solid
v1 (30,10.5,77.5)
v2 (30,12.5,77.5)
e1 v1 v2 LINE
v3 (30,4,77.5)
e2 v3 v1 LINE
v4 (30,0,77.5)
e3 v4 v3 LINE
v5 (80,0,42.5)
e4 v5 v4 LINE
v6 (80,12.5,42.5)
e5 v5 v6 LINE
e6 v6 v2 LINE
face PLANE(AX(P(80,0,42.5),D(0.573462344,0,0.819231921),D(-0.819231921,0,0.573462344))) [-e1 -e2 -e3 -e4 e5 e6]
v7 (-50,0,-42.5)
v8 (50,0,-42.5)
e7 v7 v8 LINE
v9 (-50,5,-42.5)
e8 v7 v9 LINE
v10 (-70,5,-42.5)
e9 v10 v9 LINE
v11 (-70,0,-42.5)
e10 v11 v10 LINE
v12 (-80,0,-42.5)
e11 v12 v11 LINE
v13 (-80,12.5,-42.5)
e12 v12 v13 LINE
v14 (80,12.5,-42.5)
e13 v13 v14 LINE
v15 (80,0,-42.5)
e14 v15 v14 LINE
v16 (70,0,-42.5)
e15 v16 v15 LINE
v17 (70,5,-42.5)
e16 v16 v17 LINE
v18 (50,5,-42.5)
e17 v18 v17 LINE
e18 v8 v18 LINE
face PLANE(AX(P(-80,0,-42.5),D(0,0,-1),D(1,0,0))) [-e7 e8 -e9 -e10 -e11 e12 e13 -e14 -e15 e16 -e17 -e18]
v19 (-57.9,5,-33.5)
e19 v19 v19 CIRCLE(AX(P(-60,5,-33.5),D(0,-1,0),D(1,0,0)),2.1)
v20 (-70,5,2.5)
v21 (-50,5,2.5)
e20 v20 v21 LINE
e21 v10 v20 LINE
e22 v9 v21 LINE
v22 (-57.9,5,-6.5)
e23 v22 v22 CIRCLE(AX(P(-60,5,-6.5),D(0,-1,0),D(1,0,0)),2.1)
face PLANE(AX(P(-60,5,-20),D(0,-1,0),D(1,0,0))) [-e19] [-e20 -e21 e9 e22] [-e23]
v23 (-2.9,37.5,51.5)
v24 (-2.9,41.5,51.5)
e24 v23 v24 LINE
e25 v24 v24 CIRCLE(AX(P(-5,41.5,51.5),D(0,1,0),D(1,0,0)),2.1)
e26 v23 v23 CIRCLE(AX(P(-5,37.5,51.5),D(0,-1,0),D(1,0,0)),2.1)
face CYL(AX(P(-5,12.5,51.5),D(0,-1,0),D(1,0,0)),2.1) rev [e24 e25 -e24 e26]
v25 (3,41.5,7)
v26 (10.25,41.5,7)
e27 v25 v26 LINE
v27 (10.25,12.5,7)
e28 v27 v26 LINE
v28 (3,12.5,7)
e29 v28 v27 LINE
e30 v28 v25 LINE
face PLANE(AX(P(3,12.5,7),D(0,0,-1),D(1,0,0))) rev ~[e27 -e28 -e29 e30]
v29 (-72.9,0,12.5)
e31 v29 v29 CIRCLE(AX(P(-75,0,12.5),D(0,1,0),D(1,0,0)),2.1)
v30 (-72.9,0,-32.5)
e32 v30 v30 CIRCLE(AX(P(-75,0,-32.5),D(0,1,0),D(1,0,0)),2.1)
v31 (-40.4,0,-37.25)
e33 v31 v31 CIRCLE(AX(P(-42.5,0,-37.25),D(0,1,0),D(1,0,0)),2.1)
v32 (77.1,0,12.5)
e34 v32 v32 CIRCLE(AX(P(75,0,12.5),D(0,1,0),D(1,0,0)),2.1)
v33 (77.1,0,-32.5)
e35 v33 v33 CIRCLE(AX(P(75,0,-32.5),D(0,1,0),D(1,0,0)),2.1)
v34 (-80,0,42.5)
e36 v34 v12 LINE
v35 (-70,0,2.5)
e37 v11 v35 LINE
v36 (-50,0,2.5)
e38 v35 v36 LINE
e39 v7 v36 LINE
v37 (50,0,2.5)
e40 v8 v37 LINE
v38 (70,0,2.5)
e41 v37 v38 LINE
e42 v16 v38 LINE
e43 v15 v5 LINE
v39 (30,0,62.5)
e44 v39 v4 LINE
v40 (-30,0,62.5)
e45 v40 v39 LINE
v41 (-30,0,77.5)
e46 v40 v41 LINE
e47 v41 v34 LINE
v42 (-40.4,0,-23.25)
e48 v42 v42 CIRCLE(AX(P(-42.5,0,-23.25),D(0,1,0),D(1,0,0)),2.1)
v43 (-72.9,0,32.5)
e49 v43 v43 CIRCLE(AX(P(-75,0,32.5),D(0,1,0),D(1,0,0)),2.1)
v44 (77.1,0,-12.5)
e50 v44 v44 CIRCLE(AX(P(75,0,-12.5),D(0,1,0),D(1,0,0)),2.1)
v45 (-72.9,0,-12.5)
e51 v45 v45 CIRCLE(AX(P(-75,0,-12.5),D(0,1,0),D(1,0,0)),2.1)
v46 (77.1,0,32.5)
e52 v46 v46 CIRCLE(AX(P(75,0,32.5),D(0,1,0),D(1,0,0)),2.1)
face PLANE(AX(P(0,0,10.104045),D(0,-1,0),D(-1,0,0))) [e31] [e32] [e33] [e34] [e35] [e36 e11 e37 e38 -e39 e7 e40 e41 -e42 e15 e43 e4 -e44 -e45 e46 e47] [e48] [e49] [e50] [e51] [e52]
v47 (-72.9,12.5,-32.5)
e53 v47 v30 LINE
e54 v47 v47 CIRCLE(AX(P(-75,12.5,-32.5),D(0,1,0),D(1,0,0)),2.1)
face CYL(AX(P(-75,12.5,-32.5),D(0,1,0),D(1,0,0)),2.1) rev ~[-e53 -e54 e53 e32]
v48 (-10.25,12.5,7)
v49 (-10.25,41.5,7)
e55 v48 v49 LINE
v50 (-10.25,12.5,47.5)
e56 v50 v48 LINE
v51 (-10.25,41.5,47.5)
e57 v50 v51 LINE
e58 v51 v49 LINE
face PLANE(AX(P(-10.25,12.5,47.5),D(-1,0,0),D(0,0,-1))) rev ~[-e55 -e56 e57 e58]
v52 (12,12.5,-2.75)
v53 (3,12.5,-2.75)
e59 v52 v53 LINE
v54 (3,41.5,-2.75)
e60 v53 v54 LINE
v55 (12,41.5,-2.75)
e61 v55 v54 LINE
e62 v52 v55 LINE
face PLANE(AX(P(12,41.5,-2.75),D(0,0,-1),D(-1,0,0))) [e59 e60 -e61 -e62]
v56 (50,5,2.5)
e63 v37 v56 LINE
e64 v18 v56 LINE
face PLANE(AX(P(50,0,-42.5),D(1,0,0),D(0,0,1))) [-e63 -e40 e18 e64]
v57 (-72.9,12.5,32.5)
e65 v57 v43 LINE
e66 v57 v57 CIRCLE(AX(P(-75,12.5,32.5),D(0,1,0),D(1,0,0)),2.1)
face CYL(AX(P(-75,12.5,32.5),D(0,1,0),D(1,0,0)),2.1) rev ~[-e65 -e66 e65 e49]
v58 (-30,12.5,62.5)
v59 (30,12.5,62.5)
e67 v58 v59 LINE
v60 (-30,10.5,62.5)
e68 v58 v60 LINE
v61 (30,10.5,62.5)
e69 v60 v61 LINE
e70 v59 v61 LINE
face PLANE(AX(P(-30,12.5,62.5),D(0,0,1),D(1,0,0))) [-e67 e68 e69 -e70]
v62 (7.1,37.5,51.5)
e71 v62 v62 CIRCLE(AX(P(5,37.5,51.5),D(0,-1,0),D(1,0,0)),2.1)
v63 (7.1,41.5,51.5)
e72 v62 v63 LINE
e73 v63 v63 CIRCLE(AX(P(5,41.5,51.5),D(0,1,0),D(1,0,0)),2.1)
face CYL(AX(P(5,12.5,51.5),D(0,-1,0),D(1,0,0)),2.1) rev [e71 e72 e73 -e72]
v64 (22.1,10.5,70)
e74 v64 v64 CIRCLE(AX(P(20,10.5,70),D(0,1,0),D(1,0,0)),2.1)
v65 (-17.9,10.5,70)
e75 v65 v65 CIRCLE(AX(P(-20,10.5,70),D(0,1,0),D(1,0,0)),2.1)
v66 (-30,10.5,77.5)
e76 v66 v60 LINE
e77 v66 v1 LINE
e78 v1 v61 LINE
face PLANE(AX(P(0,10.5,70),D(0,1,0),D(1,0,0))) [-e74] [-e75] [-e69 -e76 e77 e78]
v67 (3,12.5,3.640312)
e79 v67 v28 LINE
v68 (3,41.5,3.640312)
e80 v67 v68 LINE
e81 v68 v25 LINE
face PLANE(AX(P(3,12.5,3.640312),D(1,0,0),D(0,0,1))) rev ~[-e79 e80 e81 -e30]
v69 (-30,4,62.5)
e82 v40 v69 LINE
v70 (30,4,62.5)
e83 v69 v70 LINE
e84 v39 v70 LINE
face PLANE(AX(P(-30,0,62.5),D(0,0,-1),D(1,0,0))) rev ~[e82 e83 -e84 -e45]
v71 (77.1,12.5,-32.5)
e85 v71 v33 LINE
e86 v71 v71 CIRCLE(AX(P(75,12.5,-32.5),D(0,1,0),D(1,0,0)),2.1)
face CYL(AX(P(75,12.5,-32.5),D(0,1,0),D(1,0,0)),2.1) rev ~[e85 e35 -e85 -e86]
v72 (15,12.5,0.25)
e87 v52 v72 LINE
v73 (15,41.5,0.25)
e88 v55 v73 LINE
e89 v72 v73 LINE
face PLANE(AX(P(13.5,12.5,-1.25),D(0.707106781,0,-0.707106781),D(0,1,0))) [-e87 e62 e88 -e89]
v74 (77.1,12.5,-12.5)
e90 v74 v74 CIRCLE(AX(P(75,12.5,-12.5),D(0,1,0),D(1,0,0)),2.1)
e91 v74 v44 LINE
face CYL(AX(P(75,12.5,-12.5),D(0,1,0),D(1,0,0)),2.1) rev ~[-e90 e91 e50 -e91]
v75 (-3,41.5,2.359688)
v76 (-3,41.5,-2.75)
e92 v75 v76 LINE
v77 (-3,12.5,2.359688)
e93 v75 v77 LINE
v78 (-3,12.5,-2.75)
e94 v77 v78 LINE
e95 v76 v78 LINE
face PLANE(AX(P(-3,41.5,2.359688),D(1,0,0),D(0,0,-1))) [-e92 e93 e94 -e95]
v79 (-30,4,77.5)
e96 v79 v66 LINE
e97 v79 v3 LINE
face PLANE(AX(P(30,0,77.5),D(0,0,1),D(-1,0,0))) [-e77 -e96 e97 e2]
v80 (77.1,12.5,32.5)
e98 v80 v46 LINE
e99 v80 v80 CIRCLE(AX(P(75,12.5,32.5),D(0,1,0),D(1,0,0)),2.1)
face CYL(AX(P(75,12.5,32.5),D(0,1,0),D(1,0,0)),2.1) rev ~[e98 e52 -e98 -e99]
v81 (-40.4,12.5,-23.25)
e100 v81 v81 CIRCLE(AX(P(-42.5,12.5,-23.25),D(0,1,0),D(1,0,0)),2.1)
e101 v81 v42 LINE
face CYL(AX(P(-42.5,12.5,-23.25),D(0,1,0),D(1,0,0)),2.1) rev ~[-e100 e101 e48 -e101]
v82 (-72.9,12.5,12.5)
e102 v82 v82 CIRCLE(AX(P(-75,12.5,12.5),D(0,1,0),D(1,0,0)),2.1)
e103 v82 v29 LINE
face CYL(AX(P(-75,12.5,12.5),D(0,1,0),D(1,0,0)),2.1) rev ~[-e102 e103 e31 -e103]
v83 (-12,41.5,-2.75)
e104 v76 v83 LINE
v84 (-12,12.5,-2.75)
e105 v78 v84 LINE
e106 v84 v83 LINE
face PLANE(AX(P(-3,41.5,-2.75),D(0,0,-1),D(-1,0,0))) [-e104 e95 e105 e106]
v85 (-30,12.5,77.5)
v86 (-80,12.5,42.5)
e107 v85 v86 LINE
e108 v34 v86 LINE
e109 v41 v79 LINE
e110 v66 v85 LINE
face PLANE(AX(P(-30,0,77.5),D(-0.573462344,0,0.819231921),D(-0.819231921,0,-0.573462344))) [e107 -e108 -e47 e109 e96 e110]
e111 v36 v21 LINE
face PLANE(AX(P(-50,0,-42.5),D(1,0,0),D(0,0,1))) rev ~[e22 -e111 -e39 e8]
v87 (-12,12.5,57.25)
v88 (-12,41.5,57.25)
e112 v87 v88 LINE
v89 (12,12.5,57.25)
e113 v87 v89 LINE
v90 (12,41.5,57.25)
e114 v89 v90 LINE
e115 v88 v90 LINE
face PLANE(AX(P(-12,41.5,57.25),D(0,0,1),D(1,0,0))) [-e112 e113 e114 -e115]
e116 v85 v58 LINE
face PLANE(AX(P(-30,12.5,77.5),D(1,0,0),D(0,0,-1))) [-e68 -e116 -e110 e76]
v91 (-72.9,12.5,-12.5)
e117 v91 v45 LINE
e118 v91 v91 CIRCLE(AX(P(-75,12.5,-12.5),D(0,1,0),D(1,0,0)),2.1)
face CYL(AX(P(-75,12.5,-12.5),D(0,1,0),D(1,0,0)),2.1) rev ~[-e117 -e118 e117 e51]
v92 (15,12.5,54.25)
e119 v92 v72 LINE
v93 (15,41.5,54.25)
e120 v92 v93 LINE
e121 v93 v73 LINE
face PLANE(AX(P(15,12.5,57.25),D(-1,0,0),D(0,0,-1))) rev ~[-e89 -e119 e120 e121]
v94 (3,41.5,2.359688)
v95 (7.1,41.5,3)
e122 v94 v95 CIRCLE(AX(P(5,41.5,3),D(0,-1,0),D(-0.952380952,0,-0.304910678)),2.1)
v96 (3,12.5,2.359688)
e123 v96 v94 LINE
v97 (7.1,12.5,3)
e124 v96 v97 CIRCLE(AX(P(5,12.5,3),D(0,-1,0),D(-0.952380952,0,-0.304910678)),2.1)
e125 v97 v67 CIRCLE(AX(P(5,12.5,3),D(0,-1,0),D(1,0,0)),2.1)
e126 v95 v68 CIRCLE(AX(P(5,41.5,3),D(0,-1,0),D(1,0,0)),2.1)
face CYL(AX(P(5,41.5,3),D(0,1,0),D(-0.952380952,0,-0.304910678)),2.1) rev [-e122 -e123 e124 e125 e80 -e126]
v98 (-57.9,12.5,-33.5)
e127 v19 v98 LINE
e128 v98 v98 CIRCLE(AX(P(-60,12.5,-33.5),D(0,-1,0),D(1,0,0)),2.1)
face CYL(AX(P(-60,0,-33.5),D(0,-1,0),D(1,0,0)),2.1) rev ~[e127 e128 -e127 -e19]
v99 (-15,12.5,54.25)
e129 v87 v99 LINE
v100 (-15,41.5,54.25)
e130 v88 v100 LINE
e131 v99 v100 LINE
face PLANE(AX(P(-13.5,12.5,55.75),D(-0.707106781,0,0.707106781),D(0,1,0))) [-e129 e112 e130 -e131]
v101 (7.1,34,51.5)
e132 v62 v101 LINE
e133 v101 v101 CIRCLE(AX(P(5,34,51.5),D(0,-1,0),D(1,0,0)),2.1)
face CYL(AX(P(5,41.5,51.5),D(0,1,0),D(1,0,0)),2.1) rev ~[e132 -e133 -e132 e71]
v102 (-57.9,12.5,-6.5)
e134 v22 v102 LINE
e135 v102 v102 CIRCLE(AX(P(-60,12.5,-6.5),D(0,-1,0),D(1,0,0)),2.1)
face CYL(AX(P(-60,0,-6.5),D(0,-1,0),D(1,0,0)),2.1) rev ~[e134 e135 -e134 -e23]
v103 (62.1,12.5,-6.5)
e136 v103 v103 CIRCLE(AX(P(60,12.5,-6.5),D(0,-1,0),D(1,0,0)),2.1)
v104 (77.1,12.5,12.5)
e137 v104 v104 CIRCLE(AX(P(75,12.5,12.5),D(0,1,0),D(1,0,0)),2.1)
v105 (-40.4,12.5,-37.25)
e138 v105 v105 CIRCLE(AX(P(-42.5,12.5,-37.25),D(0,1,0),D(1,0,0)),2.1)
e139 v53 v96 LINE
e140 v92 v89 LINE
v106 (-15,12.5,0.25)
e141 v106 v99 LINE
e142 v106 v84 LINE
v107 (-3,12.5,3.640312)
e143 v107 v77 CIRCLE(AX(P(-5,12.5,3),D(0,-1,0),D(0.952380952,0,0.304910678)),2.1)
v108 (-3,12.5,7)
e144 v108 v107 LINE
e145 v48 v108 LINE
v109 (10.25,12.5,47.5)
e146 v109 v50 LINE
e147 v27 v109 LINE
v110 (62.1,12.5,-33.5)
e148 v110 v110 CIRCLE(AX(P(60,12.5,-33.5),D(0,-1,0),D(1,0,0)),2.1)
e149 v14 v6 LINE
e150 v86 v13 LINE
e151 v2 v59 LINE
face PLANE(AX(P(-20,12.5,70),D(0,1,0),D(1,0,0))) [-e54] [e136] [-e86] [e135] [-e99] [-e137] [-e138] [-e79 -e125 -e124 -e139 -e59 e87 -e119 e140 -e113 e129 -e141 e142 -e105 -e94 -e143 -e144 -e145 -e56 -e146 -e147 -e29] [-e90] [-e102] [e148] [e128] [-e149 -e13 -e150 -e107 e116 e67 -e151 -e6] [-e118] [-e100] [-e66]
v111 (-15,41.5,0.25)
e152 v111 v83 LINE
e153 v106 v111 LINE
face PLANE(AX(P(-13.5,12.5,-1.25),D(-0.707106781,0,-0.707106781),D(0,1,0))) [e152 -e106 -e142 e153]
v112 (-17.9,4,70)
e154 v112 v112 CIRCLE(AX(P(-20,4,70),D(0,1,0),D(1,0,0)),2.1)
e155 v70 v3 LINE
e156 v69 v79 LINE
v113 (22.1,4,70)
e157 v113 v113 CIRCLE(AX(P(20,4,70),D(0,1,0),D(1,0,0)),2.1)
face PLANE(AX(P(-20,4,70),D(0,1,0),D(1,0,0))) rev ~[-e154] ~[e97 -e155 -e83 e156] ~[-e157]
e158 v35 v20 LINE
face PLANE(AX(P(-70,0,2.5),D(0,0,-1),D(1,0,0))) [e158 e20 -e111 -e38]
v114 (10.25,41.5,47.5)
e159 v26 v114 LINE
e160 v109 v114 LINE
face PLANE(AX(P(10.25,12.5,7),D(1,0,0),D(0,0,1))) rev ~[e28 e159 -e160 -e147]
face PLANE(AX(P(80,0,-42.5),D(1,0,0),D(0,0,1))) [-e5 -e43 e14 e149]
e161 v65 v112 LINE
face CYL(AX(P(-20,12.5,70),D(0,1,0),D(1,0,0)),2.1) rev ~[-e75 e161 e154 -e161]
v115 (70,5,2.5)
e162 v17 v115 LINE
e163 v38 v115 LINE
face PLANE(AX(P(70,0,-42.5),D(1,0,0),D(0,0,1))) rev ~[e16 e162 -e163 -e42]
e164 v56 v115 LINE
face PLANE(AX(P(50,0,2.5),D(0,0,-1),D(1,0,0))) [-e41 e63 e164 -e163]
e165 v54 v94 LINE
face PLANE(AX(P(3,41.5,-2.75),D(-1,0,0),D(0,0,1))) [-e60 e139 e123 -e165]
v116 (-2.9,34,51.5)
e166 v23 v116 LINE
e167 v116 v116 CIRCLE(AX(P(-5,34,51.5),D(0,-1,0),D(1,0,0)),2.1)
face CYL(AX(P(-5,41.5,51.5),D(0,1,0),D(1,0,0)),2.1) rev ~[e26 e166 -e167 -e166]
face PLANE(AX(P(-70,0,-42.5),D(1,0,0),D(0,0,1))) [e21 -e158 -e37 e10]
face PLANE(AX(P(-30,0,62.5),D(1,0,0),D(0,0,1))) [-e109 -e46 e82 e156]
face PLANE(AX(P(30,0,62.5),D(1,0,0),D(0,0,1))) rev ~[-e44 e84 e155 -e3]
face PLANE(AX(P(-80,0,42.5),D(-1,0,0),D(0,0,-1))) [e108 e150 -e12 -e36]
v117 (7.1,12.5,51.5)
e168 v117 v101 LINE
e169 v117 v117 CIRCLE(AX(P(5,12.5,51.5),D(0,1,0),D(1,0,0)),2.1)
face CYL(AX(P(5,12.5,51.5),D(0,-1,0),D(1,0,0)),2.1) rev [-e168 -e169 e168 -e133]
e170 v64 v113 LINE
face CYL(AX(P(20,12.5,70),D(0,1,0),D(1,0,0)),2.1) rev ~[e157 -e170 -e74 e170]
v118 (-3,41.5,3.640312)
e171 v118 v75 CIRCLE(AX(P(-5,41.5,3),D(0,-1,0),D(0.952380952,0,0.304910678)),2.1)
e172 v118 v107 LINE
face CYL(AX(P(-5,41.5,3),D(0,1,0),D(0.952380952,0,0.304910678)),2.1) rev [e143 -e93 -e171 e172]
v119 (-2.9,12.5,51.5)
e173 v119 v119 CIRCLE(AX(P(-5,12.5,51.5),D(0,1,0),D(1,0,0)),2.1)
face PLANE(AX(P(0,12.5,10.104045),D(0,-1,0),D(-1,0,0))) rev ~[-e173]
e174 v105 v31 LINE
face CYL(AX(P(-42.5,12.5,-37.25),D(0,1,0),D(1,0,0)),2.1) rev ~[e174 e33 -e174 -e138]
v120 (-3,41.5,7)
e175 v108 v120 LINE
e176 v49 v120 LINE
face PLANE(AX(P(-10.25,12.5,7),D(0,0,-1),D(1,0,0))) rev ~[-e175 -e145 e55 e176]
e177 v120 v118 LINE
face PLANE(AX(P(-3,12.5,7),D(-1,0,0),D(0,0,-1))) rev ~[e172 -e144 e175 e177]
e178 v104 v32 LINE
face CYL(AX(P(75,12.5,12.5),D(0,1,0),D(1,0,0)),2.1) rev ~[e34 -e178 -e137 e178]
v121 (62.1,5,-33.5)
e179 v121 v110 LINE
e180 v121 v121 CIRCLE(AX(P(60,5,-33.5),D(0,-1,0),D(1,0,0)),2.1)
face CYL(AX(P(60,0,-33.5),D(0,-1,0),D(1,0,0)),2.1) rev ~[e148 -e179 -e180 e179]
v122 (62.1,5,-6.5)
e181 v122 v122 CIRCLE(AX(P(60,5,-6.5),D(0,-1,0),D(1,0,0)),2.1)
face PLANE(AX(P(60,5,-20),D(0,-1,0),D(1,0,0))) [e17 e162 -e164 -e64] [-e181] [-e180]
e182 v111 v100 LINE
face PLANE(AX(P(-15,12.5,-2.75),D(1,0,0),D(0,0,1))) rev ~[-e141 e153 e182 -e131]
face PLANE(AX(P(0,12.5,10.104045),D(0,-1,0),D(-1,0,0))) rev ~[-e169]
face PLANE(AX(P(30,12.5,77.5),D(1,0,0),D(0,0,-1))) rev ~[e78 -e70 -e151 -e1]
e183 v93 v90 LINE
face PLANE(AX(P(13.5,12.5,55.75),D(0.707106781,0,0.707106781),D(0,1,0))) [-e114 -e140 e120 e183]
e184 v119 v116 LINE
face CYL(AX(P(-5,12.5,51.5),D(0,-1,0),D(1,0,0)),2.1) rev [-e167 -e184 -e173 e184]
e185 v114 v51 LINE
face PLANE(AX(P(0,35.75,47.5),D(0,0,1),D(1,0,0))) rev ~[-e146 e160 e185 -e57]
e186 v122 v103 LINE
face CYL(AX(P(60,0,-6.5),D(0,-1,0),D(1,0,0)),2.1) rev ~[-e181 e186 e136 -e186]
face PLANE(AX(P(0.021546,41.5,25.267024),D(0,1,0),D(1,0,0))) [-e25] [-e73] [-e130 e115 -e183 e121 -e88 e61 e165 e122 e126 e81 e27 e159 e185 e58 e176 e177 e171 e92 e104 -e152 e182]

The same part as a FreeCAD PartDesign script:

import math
import FreeCAD as App
import Part
import Sketcher
from FreeCAD import Vector
Q = App.Units.Quantity


def edges_at(feature, points):
    """Names of the edges that pass closest to the given points."""
    edges = feature.Shape.Edges
    near = lambda p: min(range(len(edges)), key=lambda i: edges[i].distToShape(Part.Vertex(*p))[0])
    return sorted({f"Edge{near(p) + 1}" for p in points})

doc = App.newDocument("Part")
body = doc.addObject("PartDesign::Body", "Body")

sketch1 = body.newObject("Sketcher::SketchObject", "Sketch")
sketch1.AttachmentSupport = (doc.getObject("XZ_Plane"), [""])
sketch1.MapMode = "FlatFace"
sketch1.addGeometry(Part.LineSegment(Vector(-80, -42, 0), Vector(-80, 42, 0)), False)
sketch1.addGeometry(Part.LineSegment(Vector(-80, 42, 0), Vector(-30, 78, 0)), False)
sketch1.addGeometry(Part.LineSegment(Vector(-30, 78, 0), Vector(30, 78, 0)), False)
sketch1.addGeometry(Part.LineSegment(Vector(30, 78, 0), Vector(80, 42, 0)), False)
sketch1.addGeometry(Part.LineSegment(Vector(80, 42, 0), Vector(80, -42, 0)), False)
sketch1.addGeometry(Part.LineSegment(Vector(80, -42, 0), Vector(-80, -42, 0)), False)
sketch1.addConstraint(Sketcher.Constraint("Coincident", 0, 2, 1, 1))
sketch1.addConstraint(Sketcher.Constraint("Coincident", 1, 2, 2, 1))
sketch1.addConstraint(Sketcher.Constraint("Coincident", 2, 2, 3, 1))
sketch1.addConstraint(Sketcher.Constraint("Coincident", 3, 2, 4, 1))
sketch1.addConstraint(Sketcher.Constraint("Coincident", 4, 2, 5, 1))
sketch1.addConstraint(Sketcher.Constraint("Coincident", 5, 2, 0, 1))
sketch1.addConstraint(Sketcher.Constraint("Vertical", 0))
sketch1.addConstraint(Sketcher.Constraint("Horizontal", 2))
sketch1.addConstraint(Sketcher.Constraint("Vertical", 4))
sketch1.addConstraint(Sketcher.Constraint("Horizontal", 5))
sketch1.addConstraint(Sketcher.Constraint("Symmetric", 0, 2, 4, 2, -1, 1))
sketch1.addConstraint(Sketcher.Constraint("Horizontal", 0, 2, 3, 2))
sketch1.addConstraint(Sketcher.Constraint("Equal", 1, 3))
sketch1.addConstraint(Sketcher.Constraint("DistanceX", 2, 1, 2, 2, Q("60 mm")))
sketch1.addConstraint(Sketcher.Constraint("DistanceX", 5, 2, 5, 1, Q("160 mm")))
sketch1.addConstraint(Sketcher.Constraint("DistanceY", 0, 1, 0, 2, Q("85 mm")))
sketch1.addConstraint(Sketcher.Constraint("DistanceY", 0, 2, 1, 2, Q("35 mm")))
pad1 = body.newObject("PartDesign::Pad", "Pad")
pad1.Profile = sketch1
pad1.Length = 12.5
pad1.Reversed = True

sketch2 = body.newObject("Sketcher::SketchObject", "Sketch001")
sketch2.AttachmentSupport = (doc.getObject("XZ_Plane"), [""])
sketch2.MapMode = "FlatFace"
sketch2.AttachmentOffset = App.Placement(Vector(0, 0, -12.5), App.Rotation())
sketch2.addGeometry(Part.LineSegment(Vector(10.2, 47.5, 0), Vector(-10.2, 47.5, 0)), False)
sketch2.addGeometry(Part.LineSegment(Vector(-10.2, 47.5, 0), Vector(-10.2, 7, 0)), False)
sketch2.addGeometry(Part.LineSegment(Vector(-10.2, 7, 0), Vector(-3, 7, 0)), False)
sketch2.addGeometry(Part.LineSegment(Vector(-3, 7, 0), Vector(-3, 3.6, 0)), False)
sketch2.addGeometry(Part.ArcOfCircle(Part.Circle(Vector(-5, 3, 0), Vector(0, 0, 1), 2.1), math.radians(18), math.radians(342)), False)
sketch2.addGeometry(Part.LineSegment(Vector(-3, 2.4, 0), Vector(-3, -2.8, 0)), False)
sketch2.addGeometry(Part.LineSegment(Vector(-3, -2.8, 0), Vector(-15, -2.8, 0)), False)
sketch2.addGeometry(Part.LineSegment(Vector(-15, -2.8, 0), Vector(-15, 57.2, 0)), False)
sketch2.addGeometry(Part.LineSegment(Vector(-15, 57.2, 0), Vector(15, 57.2, 0)), False)
sketch2.addGeometry(Part.LineSegment(Vector(15, 57.2, 0), Vector(15, -2.8, 0)), False)
sketch2.addGeometry(Part.LineSegment(Vector(15, -2.8, 0), Vector(3, -2.8, 0)), False)
sketch2.addGeometry(Part.LineSegment(Vector(3, -2.8, 0), Vector(3, 2.4, 0)), False)
sketch2.addGeometry(Part.ArcOfCircle(Part.Circle(Vector(5, 3, 0), Vector(0, 0, 1), 2.1), math.radians(-162), math.radians(0)), False)
sketch2.addGeometry(Part.ArcOfCircle(Part.Circle(Vector(5, 3, 0), Vector(0, 0, 1), 2.1), math.radians(0), math.radians(162)), False)
sketch2.addGeometry(Part.LineSegment(Vector(3, 3.6, 0), Vector(3, 7, 0)), False)
sketch2.addGeometry(Part.LineSegment(Vector(3, 7, 0), Vector(10.2, 7, 0)), False)
sketch2.addGeometry(Part.LineSegment(Vector(10.2, 7, 0), Vector(10.2, 47.5, 0)), False)
sketch2.addGeometry(Part.Circle(Vector(-5, 51.5, 0), Vector(0, 0, 1), 2.1), False)
sketch2.addGeometry(Part.Circle(Vector(5, 51.5, 0), Vector(0, 0, 1), 2.1), False)
sketch2.addConstraint(Sketcher.Constraint("Coincident", 0, 2, 1, 1))
sketch2.addConstraint(Sketcher.Constraint("Coincident", 1, 2, 2, 1))
sketch2.addConstraint(Sketcher.Constraint("Coincident", 2, 2, 3, 1))
sketch2.addConstraint(Sketcher.Constraint("Coincident", 3, 2, 4, 1))
sketch2.addConstraint(Sketcher.Constraint("Coincident", 4, 2, 5, 1))
sketch2.addConstraint(Sketcher.Constraint("Coincident", 5, 2, 6, 1))
sketch2.addConstraint(Sketcher.Constraint("Coincident", 6, 2, 7, 1))
sketch2.addConstraint(Sketcher.Constraint("Coincident", 7, 2, 8, 1))
sketch2.addConstraint(Sketcher.Constraint("Coincident", 8, 2, 9, 1))
sketch2.addConstraint(Sketcher.Constraint("Coincident", 9, 2, 10, 1))
sketch2.addConstraint(Sketcher.Constraint("Coincident", 10, 2, 11, 1))
sketch2.addConstraint(Sketcher.Constraint("Coincident", 11, 2, 12, 1))
sketch2.addConstraint(Sketcher.Constraint("Tangent", 12, 2, 13, 1))
sketch2.addConstraint(Sketcher.Constraint("Coincident", 13, 2, 14, 1))
sketch2.addConstraint(Sketcher.Constraint("Coincident", 14, 2, 15, 1))
sketch2.addConstraint(Sketcher.Constraint("Coincident", 15, 2, 16, 1))
sketch2.addConstraint(Sketcher.Constraint("Coincident", 16, 2, 0, 1))
sketch2.addConstraint(Sketcher.Constraint("Horizontal", 0))
sketch2.addConstraint(Sketcher.Constraint("Vertical", 1))
sketch2.addConstraint(Sketcher.Constraint("Horizontal", 2))
sketch2.addConstraint(Sketcher.Constraint("Vertical", 3))
sketch2.addConstraint(Sketcher.Constraint("Vertical", 5))
sketch2.addConstraint(Sketcher.Constraint("Horizontal", 6))
sketch2.addConstraint(Sketcher.Constraint("Vertical", 7))
sketch2.addConstraint(Sketcher.Constraint("Horizontal", 8))
sketch2.addConstraint(Sketcher.Constraint("Vertical", 9))
sketch2.addConstraint(Sketcher.Constraint("Horizontal", 10))
sketch2.addConstraint(Sketcher.Constraint("Vertical", 11))
sketch2.addConstraint(Sketcher.Constraint("Vertical", 14))
sketch2.addConstraint(Sketcher.Constraint("Horizontal", 15))
sketch2.addConstraint(Sketcher.Constraint("Vertical", 16))
sketch2.addConstraint(Sketcher.Constraint("Equal", 4, 12))
sketch2.addConstraint(Sketcher.Constraint("Equal", 12, 13))
sketch2.addConstraint(Sketcher.Constraint("Equal", 13, 17))
sketch2.addConstraint(Sketcher.Constraint("Equal", 17, 18))
sketch2.addConstraint(Sketcher.Constraint("Symmetric", 4, 3, 12, 3, -2))
sketch2.addConstraint(Sketcher.Constraint("Symmetric", 17, 3, 18, 3, -2))
sketch2.addConstraint(Sketcher.Constraint("Symmetric", 6, 2, 9, 2, -2))
sketch2.addConstraint(Sketcher.Constraint("Symmetric", 2, 2, 14, 2, -2))
sketch2.addConstraint(Sketcher.Constraint("Horizontal", 4, 2, 11, 2))
sketch2.addConstraint(Sketcher.Constraint("Horizontal", 13, 3, 12, 2))
sketch2.addConstraint(Sketcher.Constraint("Vertical", 4, 3, 17, 3))
sketch2.addConstraint(Sketcher.Constraint("Vertical", 3, 2, 4, 2))
sketch2.addConstraint(Sketcher.Constraint("Equal", 2, 15))
sketch2.addConstraint(Sketcher.Constraint("Diameter", 17, Q("4.2 mm")))
sketch2.addConstraint(Sketcher.Constraint("DistanceX", 6, 2, 6, 1, Q("12 mm")))
sketch2.addConstraint(Sketcher.Constraint("DistanceX", 8, 1, 8, 2, Q("30 mm")))
sketch2.addConstraint(Sketcher.Constraint("DistanceY", 7, 1, 7, 2, Q("60 mm")))
sketch2.addConstraint(Sketcher.Constraint("DistanceX", 0, 2, 0, 1, Q("20.5 mm")))
sketch2.addConstraint(Sketcher.Constraint("DistanceY", 1, 2, 1, 1, Q("40.5 mm")))
sketch2.addConstraint(Sketcher.Constraint("DistanceX", 4, 3, -1, 1, Q("5 mm")))
sketch2.addConstraint(Sketcher.Constraint("DistanceY", -1, 1, 4, 3, Q("3 mm")))
sketch2.addConstraint(Sketcher.Constraint("DistanceY", -1, 1, 1, 2, Q("7 mm")))
sketch2.addConstraint(Sketcher.Constraint("DistanceY", 0, 2, 17, 3, Q("4 mm")))
sketch2.addConstraint(Sketcher.Constraint("DistanceY", 5, 2, -1, 1, Q("2.75 mm")))
pad2 = body.newObject("PartDesign::Pad", "Pad001")
pad2.Profile = sketch2
pad2.Length = 29
pad2.Reversed = True

sketch3 = body.newObject("Sketcher::SketchObject", "Sketch002")
sketch3.AttachmentSupport = (doc.getObject("XY_Plane"), [""])
sketch3.MapMode = "FlatFace"
sketch3.AttachmentOffset = App.Placement(Vector(0, 0, 57.25), App.Rotation())
sketch3.addGeometry(Part.LineSegment(Vector(0.5, 37.5, 0), Vector(0.5, 34, 0)), False)
sketch3.addGeometry(Part.LineSegment(Vector(0.5, 34, 0), Vector(9.5, 34, 0)), False)
sketch3.addGeometry(Part.LineSegment(Vector(9.5, 34, 0), Vector(9.5, 37.5, 0)), False)
sketch3.addGeometry(Part.LineSegment(Vector(9.5, 37.5, 0), Vector(0.5, 37.5, 0)), False)
sketch3.addGeometry(Part.LineSegment(Vector(-9.5, 37.5, 0), Vector(-9.5, 34, 0)), False)
sketch3.addGeometry(Part.LineSegment(Vector(-9.5, 34, 0), Vector(-0.5, 34, 0)), False)
sketch3.addGeometry(Part.LineSegment(Vector(-0.5, 34, 0), Vector(-0.5, 37.5, 0)), False)
sketch3.addGeometry(Part.LineSegment(Vector(-0.5, 37.5, 0), Vector(-9.5, 37.5, 0)), False)
sketch3.addConstraint(Sketcher.Constraint("Coincident", 0, 2, 1, 1))
sketch3.addConstraint(Sketcher.Constraint("Coincident", 1, 2, 2, 1))
sketch3.addConstraint(Sketcher.Constraint("Coincident", 2, 2, 3, 1))
sketch3.addConstraint(Sketcher.Constraint("Coincident", 3, 2, 0, 1))
sketch3.addConstraint(Sketcher.Constraint("Coincident", 4, 2, 5, 1))
sketch3.addConstraint(Sketcher.Constraint("Coincident", 5, 2, 6, 1))
sketch3.addConstraint(Sketcher.Constraint("Coincident", 6, 2, 7, 1))
sketch3.addConstraint(Sketcher.Constraint("Coincident", 7, 2, 4, 1))
sketch3.addConstraint(Sketcher.Constraint("Vertical", 0))
sketch3.addConstraint(Sketcher.Constraint("Horizontal", 1))
sketch3.addConstraint(Sketcher.Constraint("Vertical", 2))
sketch3.addConstraint(Sketcher.Constraint("Horizontal", 3))
sketch3.addConstraint(Sketcher.Constraint("Vertical", 4))
sketch3.addConstraint(Sketcher.Constraint("Horizontal", 5))
sketch3.addConstraint(Sketcher.Constraint("Vertical", 6))
sketch3.addConstraint(Sketcher.Constraint("Horizontal", 7))
sketch3.addConstraint(Sketcher.Constraint("Symmetric", 1, 2, 4, 2, -2))
sketch3.addConstraint(Sketcher.Constraint("Symmetric", 3, 2, 6, 2, -2))
sketch3.addConstraint(Sketcher.Constraint("DistanceX", 1, 1, 1, 2, Q("9 mm")))
sketch3.addConstraint(Sketcher.Constraint("DistanceY", 0, 2, 0, 1, Q("3.5 mm")))
sketch3.addConstraint(Sketcher.Constraint("DistanceY", -1, 1, 0, 2, Q("34 mm")))
sketch3.addConstraint(Sketcher.Constraint("DistanceX", 4, 2, 0, 2, Q("10 mm")))
pocket1 = body.newObject("PartDesign::Pocket", "Pocket")
pocket1.Profile = sketch3
pocket1.Length = 73
doc.recompute()

chamfer = body.newObject("PartDesign::Chamfer", "Chamfer")
chamfer.Base = (pocket1, edges_at(pocket1, [
    (-15, 27, -2.75),
    (-15, 27, 57.25),
    (15, 27, 57.25),
    (15, 27, -2.75),
]))
chamfer.Size = 3

sketch4 = body.newObject("Sketcher::SketchObject", "Sketch003")
sketch4.AttachmentSupport = (doc.getObject("XZ_Plane"), [""])
sketch4.MapMode = "FlatFace"
sketch4.addGeometry(Part.LineSegment(Vector(-30, 77.5, 0), Vector(-30, 62.5, 0)), False)
sketch4.addGeometry(Part.LineSegment(Vector(-30, 62.5, 0), Vector(30, 62.5, 0)), False)
sketch4.addGeometry(Part.LineSegment(Vector(30, 62.5, 0), Vector(30, 77.5, 0)), False)
sketch4.addGeometry(Part.LineSegment(Vector(30, 77.5, 0), Vector(-30, 77.5, 0)), False)
sketch4.addGeometry(Part.Circle(Vector(-20, 70, 0), Vector(0, 0, 1), 2.9), False)
sketch4.addGeometry(Part.Circle(Vector(20, 70, 0), Vector(0, 0, 1), 2.9), False)
sketch4.addConstraint(Sketcher.Constraint("Coincident", 0, 2, 1, 1))
sketch4.addConstraint(Sketcher.Constraint("Coincident", 1, 2, 2, 1))
sketch4.addConstraint(Sketcher.Constraint("Coincident", 2, 2, 3, 1))
sketch4.addConstraint(Sketcher.Constraint("Coincident", 3, 2, 0, 1))
sketch4.addConstraint(Sketcher.Constraint("Vertical", 0))
sketch4.addConstraint(Sketcher.Constraint("Horizontal", 1))
sketch4.addConstraint(Sketcher.Constraint("Vertical", 2))
sketch4.addConstraint(Sketcher.Constraint("Horizontal", 3))
sketch4.addConstraint(Sketcher.Constraint("Equal", 4, 5))
sketch4.addConstraint(Sketcher.Constraint("Symmetric", 4, 3, 5, 3, -2))
sketch4.addConstraint(Sketcher.Constraint("DistanceX", 1, 1, 1, 2, Q("60 mm")))
sketch4.addConstraint(Sketcher.Constraint("DistanceY", 0, 2, 0, 1, Q("15 mm")))
sketch4.addConstraint(Sketcher.Constraint("DistanceX", 4, 3, -1, 1, Q("20 mm")))
sketch4.addConstraint(Sketcher.Constraint("DistanceY", -1, 1, 4, 3, Q("70 mm")))
sketch4.addConstraint(Sketcher.Constraint("DistanceX", 0, 2, -1, 1, Q("30 mm")))
sketch4.addConstraint(Sketcher.Constraint("DistanceY", -1, 1, 0, 2, Q("62.5 mm")))
sketch4.addConstraint(Sketcher.Constraint("Diameter", 4, Q("5.795104 mm")))
pocket2 = body.newObject("PartDesign::Pocket", "Pocket001")
pocket2.Profile = sketch4
pocket2.Length = 4

sketch5 = body.newObject("Sketcher::SketchObject", "Sketch004")
sketch5.AttachmentSupport = (doc.getObject("XZ_Plane"), [""])
sketch5.MapMode = "FlatFace"
sketch5.addGeometry(Part.Circle(Vector(-20, 70, 0), Vector(0, 0, 1), 2.9), False)
sketch5.addGeometry(Part.Circle(Vector(20, 70, 0), Vector(0, 0, 1), 2.9), False)
sketch5.addConstraint(Sketcher.Constraint("Equal", 0, 1))
sketch5.addConstraint(Sketcher.Constraint("Symmetric", 0, 3, 1, 3, -2))
sketch5.addConstraint(Sketcher.Constraint("DistanceX", 0, 3, -1, 1, Q("20 mm")))
sketch5.addConstraint(Sketcher.Constraint("DistanceY", -1, 1, 0, 3, Q("70 mm")))
sketch5.addConstraint(Sketcher.Constraint("Diameter", 0, Q("5.795104 mm")))
pocket3 = body.newObject("PartDesign::Pocket", "Pocket002")
pocket3.Profile = sketch5
pocket3.Length = 26

sketch6 = body.newObject("Sketcher::SketchObject", "Sketch005")
sketch6.AttachmentSupport = (doc.getObject("XZ_Plane"), [""])
sketch6.MapMode = "FlatFace"
sketch6.AttachmentOffset = App.Placement(Vector(0, 0, -12.5), App.Rotation())
sketch6.addGeometry(Part.Circle(Vector(-75, -32.5, 0), Vector(0, 0, 1), 2.1), False)
sketch6.addGeometry(Part.Circle(Vector(-75, -12.5, 0), Vector(0, 0, 1), 2.1), False)
sketch6.addGeometry(Part.Circle(Vector(-75, 12.5, 0), Vector(0, 0, 1), 2.1), False)
sketch6.addGeometry(Part.Circle(Vector(-75, 32.5, 0), Vector(0, 0, 1), 2.1), False)
sketch6.addGeometry(Part.Circle(Vector(75, 32.5, 0), Vector(0, 0, 1), 2.1), False)
sketch6.addGeometry(Part.Circle(Vector(75, 12.5, 0), Vector(0, 0, 1), 2.1), False)
sketch6.addGeometry(Part.Circle(Vector(75, -12.5, 0), Vector(0, 0, 1), 2.1), False)
sketch6.addGeometry(Part.Circle(Vector(75, -32.5, 0), Vector(0, 0, 1), 2.1), False)
sketch6.addConstraint(Sketcher.Constraint("Equal", 0, 1))
sketch6.addConstraint(Sketcher.Constraint("Equal", 1, 2))
sketch6.addConstraint(Sketcher.Constraint("Equal", 2, 3))
sketch6.addConstraint(Sketcher.Constraint("Equal", 3, 4))
sketch6.addConstraint(Sketcher.Constraint("Equal", 4, 5))
sketch6.addConstraint(Sketcher.Constraint("Equal", 5, 6))
sketch6.addConstraint(Sketcher.Constraint("Equal", 6, 7))
sketch6.addConstraint(Sketcher.Constraint("Symmetric", 0, 3, 4, 3, -1, 1))
sketch6.addConstraint(Sketcher.Constraint("Symmetric", 1, 3, 5, 3, -1, 1))
sketch6.addConstraint(Sketcher.Constraint("Symmetric", 2, 3, 6, 3, -1, 1))
sketch6.addConstraint(Sketcher.Constraint("Symmetric", 3, 3, 7, 3, -1, 1))
sketch6.addConstraint(Sketcher.Constraint("Symmetric", 3, 3, 4, 3, -2))
sketch6.addConstraint(Sketcher.Constraint("Symmetric", 2, 3, 5, 3, -2))
sketch6.addConstraint(Sketcher.Constraint("Vertical", 0, 3, 1, 3))
sketch6.addConstraint(Sketcher.Constraint("Diameter", 0, Q("4.2 mm")))
sketch6.addConstraint(Sketcher.Constraint("DistanceX", 0, 3, -1, 1, Q("75 mm")))
sketch6.addConstraint(Sketcher.Constraint("DistanceY", 0, 3, 1, 3, Q("20 mm")))
sketch6.addConstraint(Sketcher.Constraint("DistanceY", 1, 3, 2, 3, Q("25 mm")))
pocket4 = body.newObject("PartDesign::Pocket", "Pocket003")
pocket4.Profile = sketch6
pocket4.Length = 26
pocket4.Reversed = True

sketch7 = body.newObject("Sketcher::SketchObject", "Sketch006")
sketch7.AttachmentSupport = (doc.getObject("XZ_Plane"), [""])
sketch7.MapMode = "FlatFace"
sketch7.addGeometry(Part.Circle(Vector(-60, -6.5, 0), Vector(0, 0, 1), 2.1), False)
sketch7.addGeometry(Part.Circle(Vector(-60, -33.5, 0), Vector(0, 0, 1), 2.1), False)
sketch7.addGeometry(Part.Circle(Vector(60, -6.5, 0), Vector(0, 0, 1), 2.1), False)
sketch7.addGeometry(Part.Circle(Vector(60, -33.5, 0), Vector(0, 0, 1), 2.1), False)
sketch7.addConstraint(Sketcher.Constraint("Equal", 0, 1))
sketch7.addConstraint(Sketcher.Constraint("Equal", 1, 2))
sketch7.addConstraint(Sketcher.Constraint("Equal", 2, 3))
sketch7.addConstraint(Sketcher.Constraint("Symmetric", 0, 3, 2, 3, -2))
sketch7.addConstraint(Sketcher.Constraint("Symmetric", 1, 3, 3, 3, -2))
sketch7.addConstraint(Sketcher.Constraint("Vertical", 0, 3, 1, 3))
sketch7.addConstraint(Sketcher.Constraint("Diameter", 0, Q("4.2 mm")))
sketch7.addConstraint(Sketcher.Constraint("DistanceX", 0, 3, -1, 1, Q("60 mm")))
sketch7.addConstraint(Sketcher.Constraint("DistanceY", 1, 3, 0, 3, Q("27 mm")))
sketch7.addConstraint(Sketcher.Constraint("DistanceY", 0, 3, -1, 1, Q("6.5 mm")))
pocket5 = body.newObject("PartDesign::Pocket", "Pocket004")
pocket5.Profile = sketch7
pocket5.Length = 26

sketch8 = body.newObject("Sketcher::SketchObject", "Sketch007")
sketch8.AttachmentSupport = (doc.getObject("XZ_Plane"), [""])
sketch8.MapMode = "FlatFace"
sketch8.addGeometry(Part.LineSegment(Vector(-70, 2, 0), Vector(-70, -42, 0)), False)
sketch8.addGeometry(Part.LineSegment(Vector(-70, -42, 0), Vector(-50, -42, 0)), False)
sketch8.addGeometry(Part.LineSegment(Vector(-50, -42, 0), Vector(-50, 2, 0)), False)
sketch8.addGeometry(Part.LineSegment(Vector(-50, 2, 0), Vector(-70, 2, 0)), False)
sketch8.addGeometry(Part.LineSegment(Vector(50, 2, 0), Vector(50, -42, 0)), False)
sketch8.addGeometry(Part.LineSegment(Vector(50, -42, 0), Vector(70, -42, 0)), False)
sketch8.addGeometry(Part.LineSegment(Vector(70, -42, 0), Vector(70, 2, 0)), False)
sketch8.addGeometry(Part.LineSegment(Vector(70, 2, 0), Vector(50, 2, 0)), False)
sketch8.addConstraint(Sketcher.Constraint("Coincident", 0, 2, 1, 1))
sketch8.addConstraint(Sketcher.Constraint("Coincident", 1, 2, 2, 1))
sketch8.addConstraint(Sketcher.Constraint("Coincident", 2, 2, 3, 1))
sketch8.addConstraint(Sketcher.Constraint("Coincident", 3, 2, 0, 1))
sketch8.addConstraint(Sketcher.Constraint("Coincident", 4, 2, 5, 1))
sketch8.addConstraint(Sketcher.Constraint("Coincident", 5, 2, 6, 1))
sketch8.addConstraint(Sketcher.Constraint("Coincident", 6, 2, 7, 1))
sketch8.addConstraint(Sketcher.Constraint("Coincident", 7, 2, 4, 1))
sketch8.addConstraint(Sketcher.Constraint("Vertical", 0))
sketch8.addConstraint(Sketcher.Constraint("Horizontal", 1))
sketch8.addConstraint(Sketcher.Constraint("Vertical", 2))
sketch8.addConstraint(Sketcher.Constraint("Horizontal", 3))
sketch8.addConstraint(Sketcher.Constraint("Vertical", 4))
sketch8.addConstraint(Sketcher.Constraint("Horizontal", 5))
sketch8.addConstraint(Sketcher.Constraint("Vertical", 6))
sketch8.addConstraint(Sketcher.Constraint("Horizontal", 7))
sketch8.addConstraint(Sketcher.Constraint("Symmetric", 1, 2, 4, 2, -2))
sketch8.addConstraint(Sketcher.Constraint("Symmetric", 3, 2, 6, 2, -2))
sketch8.addConstraint(Sketcher.Constraint("DistanceX", 1, 1, 1, 2, Q("20 mm")))
sketch8.addConstraint(Sketcher.Constraint("DistanceY", 0, 2, 0, 1, Q("45 mm")))
sketch8.addConstraint(Sketcher.Constraint("DistanceX", 0, 2, -1, 1, Q("70 mm")))
sketch8.addConstraint(Sketcher.Constraint("DistanceY", 0, 2, -1, 1, Q("42.5 mm")))
pocket6 = body.newObject("PartDesign::Pocket", "Pocket005")
pocket6.Profile = sketch8
pocket6.Length = 5

sketch9 = body.newObject("Sketcher::SketchObject", "Sketch008")
sketch9.AttachmentSupport = (doc.getObject("XY_Plane"), [""])
sketch9.MapMode = "FlatFace"
sketch9.AttachmentOffset = App.Placement(Vector(0, 0, 57.25), App.Rotation())
sketch9.addGeometry(Part.LineSegment(Vector(-0.8, 37.5, 0), Vector(-0.8, 34, 0)), False)
sketch9.addGeometry(Part.LineSegment(Vector(-0.8, 34, 0), Vector(0.8, 34, 0)), False)
sketch9.addGeometry(Part.LineSegment(Vector(0.8, 34, 0), Vector(0.8, 37.5, 0)), False)
sketch9.addGeometry(Part.LineSegment(Vector(0.8, 37.5, 0), Vector(-0.8, 37.5, 0)), False)
sketch9.addConstraint(Sketcher.Constraint("Coincident", 0, 2, 1, 1))
sketch9.addConstraint(Sketcher.Constraint("Coincident", 1, 2, 2, 1))
sketch9.addConstraint(Sketcher.Constraint("Coincident", 2, 2, 3, 1))
sketch9.addConstraint(Sketcher.Constraint("Coincident", 3, 2, 0, 1))
sketch9.addConstraint(Sketcher.Constraint("Vertical", 0))
sketch9.addConstraint(Sketcher.Constraint("Horizontal", 1))
sketch9.addConstraint(Sketcher.Constraint("Vertical", 2))
sketch9.addConstraint(Sketcher.Constraint("Horizontal", 3))
sketch9.addConstraint(Sketcher.Constraint("DistanceX", 1, 1, 1, 2, Q("1.5 mm")))
sketch9.addConstraint(Sketcher.Constraint("DistanceY", 0, 2, 0, 1, Q("3.5 mm")))
sketch9.addConstraint(Sketcher.Constraint("DistanceY", -1, 1, 0, 2, Q("34 mm")))
sketch9.addConstraint(Sketcher.Constraint("DistanceX", 0, 2, -1, 1, Q("0.75 mm")))
pad3 = body.newObject("PartDesign::Pad", "Pad002")
pad3.Profile = sketch9
pad3.Length = 9.75
pad3.Reversed = True

sketch10 = body.newObject("Sketcher::SketchObject", "Sketch009")
sketch10.AttachmentSupport = (doc.getObject("XZ_Plane"), [""])
sketch10.MapMode = "FlatFace"
sketch10.AttachmentOffset = App.Placement(Vector(0, 0, -12.5), App.Rotation())
sketch10.addGeometry(Part.Circle(Vector(-42.5, -37.2, 0), Vector(0, 0, 1), 2.1), False)
sketch10.addGeometry(Part.Circle(Vector(-42.5, -23.2, 0), Vector(0, 0, 1), 2.1), False)
sketch10.addConstraint(Sketcher.Constraint("Equal", 0, 1))
sketch10.addConstraint(Sketcher.Constraint("Vertical", 0, 3, 1, 3))
sketch10.addConstraint(Sketcher.Constraint("Diameter", 0, Q("4.2 mm")))
sketch10.addConstraint(Sketcher.Constraint("DistanceY", 0, 3, 1, 3, Q("14 mm")))
sketch10.addConstraint(Sketcher.Constraint("DistanceX", 0, 3, -1, 1, Q("42.5 mm")))
sketch10.addConstraint(Sketcher.Constraint("DistanceY", 0, 3, -1, 1, Q("37.25 mm")))
pocket7 = body.newObject("PartDesign::Pocket", "Pocket006")
pocket7.Profile = sketch10
pocket7.Length = 22
pocket7.Reversed = True

sketch11 = body.newObject("Sketcher::SketchObject", "Sketch010")
sketch11.AttachmentSupport = (doc.getObject("XZ_Plane"), [""])
sketch11.MapMode = "FlatFace"
sketch11.AttachmentOffset = App.Placement(Vector(0, 0, -12.5), App.Rotation())
sketch11.addGeometry(Part.Circle(Vector(-20, 70, 0), Vector(0, 0, 1), 2.9), False)
sketch11.addGeometry(Part.Circle(Vector(-20, 70, 0), Vector(0, 0, 1), 2.1), False)
sketch11.addGeometry(Part.Circle(Vector(20, 70, 0), Vector(0, 0, 1), 2.9), False)
sketch11.addGeometry(Part.Circle(Vector(20, 70, 0), Vector(0, 0, 1), 2.1), False)
sketch11.addConstraint(Sketcher.Constraint("Coincident", 1, 3, 0, 3))
sketch11.addConstraint(Sketcher.Constraint("Coincident", 3, 3, 2, 3))
sketch11.addConstraint(Sketcher.Constraint("Equal", 0, 2))
sketch11.addConstraint(Sketcher.Constraint("Equal", 1, 3))
sketch11.addConstraint(Sketcher.Constraint("Symmetric", 0, 3, 2, 3, -2))
sketch11.addConstraint(Sketcher.Constraint("Diameter", 1, Q("4.2 mm")))
sketch11.addConstraint(Sketcher.Constraint("DistanceX", 0, 3, -1, 1, Q("20 mm")))
sketch11.addConstraint(Sketcher.Constraint("DistanceY", -1, 1, 0, 3, Q("70 mm")))
sketch11.addConstraint(Sketcher.Constraint("Diameter", 0, Q("5.795104 mm")))
pad4 = body.newObject("PartDesign::Pad", "Pad003")
pad4.Profile = sketch11
pad4.Length = 8.5

sketch12 = body.newObject("Sketcher::SketchObject", "Sketch011")
sketch12.AttachmentSupport = (doc.getObject("XY_Plane"), [""])
sketch12.MapMode = "FlatFace"
sketch12.AttachmentOffset = App.Placement(Vector(0, 0, 57.25), App.Rotation())
sketch12.addGeometry(Part.LineSegment(Vector(-0.8, 37.5, 0), Vector(-0.8, 34, 0)), False)
sketch12.addGeometry(Part.LineSegment(Vector(-0.8, 34, 0), Vector(0.8, 34, 0)), False)
sketch12.addGeometry(Part.LineSegment(Vector(0.8, 34, 0), Vector(0.8, 37.5, 0)), False)
sketch12.addGeometry(Part.LineSegment(Vector(0.8, 37.5, 0), Vector(-0.8, 37.5, 0)), False)
sketch12.addConstraint(Sketcher.Constraint("Coincident", 0, 2, 1, 1))
sketch12.addConstraint(Sketcher.Constraint("Coincident", 1, 2, 2, 1))
sketch12.addConstraint(Sketcher.Constraint("Coincident", 2, 2, 3, 1))
sketch12.addConstraint(Sketcher.Constraint("Coincident", 3, 2, 0, 1))
sketch12.addConstraint(Sketcher.Constraint("Vertical", 0))
sketch12.addConstraint(Sketcher.Constraint("Horizontal", 1))
sketch12.addConstraint(Sketcher.Constraint("Vertical", 2))
sketch12.addConstraint(Sketcher.Constraint("Horizontal", 3))
sketch12.addConstraint(Sketcher.Constraint("DistanceX", 1, 1, 1, 2, Q("1.5 mm")))
sketch12.addConstraint(Sketcher.Constraint("DistanceY", 0, 2, 0, 1, Q("3.5 mm")))
sketch12.addConstraint(Sketcher.Constraint("DistanceY", -1, 1, 0, 2, Q("34 mm")))
sketch12.addConstraint(Sketcher.Constraint("DistanceX", 0, 2, -1, 1, Q("0.75 mm")))
pocket8 = body.newObject("PartDesign::Pocket", "Pocket007")
pocket8.Profile = sketch12
pocket8.Length = 14.2

sketch13 = body.newObject("Sketcher::SketchObject", "Sketch012")
sketch13.AttachmentSupport = (doc.getObject("XZ_Plane"), [""])
sketch13.MapMode = "FlatFace"
sketch13.AttachmentOffset = App.Placement(Vector(0, 0, -12.5), App.Rotation())
sketch13.addGeometry(Part.LineSegment(Vector(-30, 62, 0), Vector(-30, 78, 0)), False)
sketch13.addGeometry(Part.LineSegment(Vector(-30, 78, 0), Vector(30, 78, 0)), False)
sketch13.addGeometry(Part.LineSegment(Vector(30, 78, 0), Vector(30, 62, 0)), False)
sketch13.addGeometry(Part.LineSegment(Vector(30, 62, 0), Vector(-30, 62, 0)), False)
sketch13.addConstraint(Sketcher.Constraint("Coincident", 0, 2, 1, 1))
sketch13.addConstraint(Sketcher.Constraint("Coincident", 1, 2, 2, 1))
sketch13.addConstraint(Sketcher.Constraint("Coincident", 2, 2, 3, 1))
sketch13.addConstraint(Sketcher.Constraint("Coincident", 3, 2, 0, 1))
sketch13.addConstraint(Sketcher.Constraint("Vertical", 0))
sketch13.addConstraint(Sketcher.Constraint("Horizontal", 1))
sketch13.addConstraint(Sketcher.Constraint("Vertical", 2))
sketch13.addConstraint(Sketcher.Constraint("Horizontal", 3))
sketch13.addConstraint(Sketcher.Constraint("DistanceX", 1, 1, 1, 2, Q("60 mm")))
sketch13.addConstraint(Sketcher.Constraint("DistanceY", 0, 1, 0, 2, Q("15 mm")))
sketch13.addConstraint(Sketcher.Constraint("DistanceX", 0, 2, -1, 1, Q("30 mm")))
sketch13.addConstraint(Sketcher.Constraint("DistanceY", -1, 1, 0, 2, Q("77.5 mm")))
pocket9 = body.newObject("PartDesign::Pocket", "Pocket008")
pocket9.Profile = sketch13
pocket9.Length = 2
pocket9.Reversed = True

sketch14 = body.newObject("Sketcher::SketchObject", "Sketch013")
sketch14.AttachmentSupport = (doc.getObject("XZ_Plane"), [""])
sketch14.MapMode = "FlatFace"
sketch14.AttachmentOffset = App.Placement(Vector(0, 0, -41.5), App.Rotation())
sketch14.addGeometry(Part.LineSegment(Vector(-12, 47.5, 0), Vector(-12, 57.2, 0)), False)
sketch14.addGeometry(Part.LineSegment(Vector(-12, 57.2, 0), Vector(12, 57.2, 0)), False)
sketch14.addGeometry(Part.LineSegment(Vector(12, 57.2, 0), Vector(12, 47.5, 0)), False)
sketch14.addGeometry(Part.LineSegment(Vector(12, 47.5, 0), Vector(-12, 47.5, 0)), False)
sketch14.addGeometry(Part.Circle(Vector(-5, 51.5, 0), Vector(0, 0, 1), 2.1), False)
sketch14.addGeometry(Part.Circle(Vector(5, 51.5, 0), Vector(0, 0, 1), 2.1), False)
sketch14.addConstraint(Sketcher.Constraint("Coincident", 0, 2, 1, 1))
sketch14.addConstraint(Sketcher.Constraint("Coincident", 1, 2, 2, 1))
sketch14.addConstraint(Sketcher.Constraint("Coincident", 2, 2, 3, 1))
sketch14.addConstraint(Sketcher.Constraint("Coincident", 3, 2, 0, 1))
sketch14.addConstraint(Sketcher.Constraint("Vertical", 0))
sketch14.addConstraint(Sketcher.Constraint("Horizontal", 1))
sketch14.addConstraint(Sketcher.Constraint("Vertical", 2))
sketch14.addConstraint(Sketcher.Constraint("Horizontal", 3))
sketch14.addConstraint(Sketcher.Constraint("Equal", 4, 5))
sketch14.addConstraint(Sketcher.Constraint("Symmetric", 4, 3, 5, 3, -2))
sketch14.addConstraint(Sketcher.Constraint("Diameter", 4, Q("4.2 mm")))
sketch14.addConstraint(Sketcher.Constraint("DistanceX", 1, 1, 1, 2, Q("24 mm")))
sketch14.addConstraint(Sketcher.Constraint("DistanceX", 4, 3, -1, 1, Q("5 mm")))
sketch14.addConstraint(Sketcher.Constraint("DistanceX", 0, 2, -1, 1, Q("12 mm")))
sketch14.addConstraint(Sketcher.Constraint("DistanceY", 2, 2, 5, 3, Q("4 mm")))
sketch14.addConstraint(Sketcher.Constraint("DistanceY", 0, 1, 0, 2, Q("9.75 mm")))
sketch14.addConstraint(Sketcher.Constraint("DistanceY", -1, 1, 4, 3, Q("51.5 mm")))
pad5 = body.newObject("PartDesign::Pad", "Pad004")
pad5.Profile = sketch14
pad5.Length = 7.5

sketch15 = body.newObject("Sketcher::SketchObject", "Sketch014")
sketch15.AttachmentSupport = (doc.getObject("XZ_Plane"), [""])
sketch15.MapMode = "FlatFace"
sketch15.AttachmentOffset = App.Placement(Vector(0, 0, -41.5), App.Rotation())
sketch15.addGeometry(Part.LineSegment(Vector(12, -2.75, 0), Vector(3, -2.75, 0)), False)
sketch15.addGeometry(Part.LineSegment(Vector(3, -2.75, 0), Vector(3, 2.36, 0)), False)
sketch15.addGeometry(Part.ArcOfCircle(Part.Circle(Vector(5, 3, 0), Vector(0, 0, 1), 2.1), math.radians(-162), math.radians(0)), False)
sketch15.addGeometry(Part.ArcOfCircle(Part.Circle(Vector(5, 3, 0), Vector(0, 0, 1), 2.1), math.radians(0), math.radians(162)), False)
sketch15.addGeometry(Part.LineSegment(Vector(3, 3.64, 0), Vector(3, 7, 0)), False)
sketch15.addGeometry(Part.LineSegment(Vector(3, 7, 0), Vector(12.12, 7, 0)), False)
sketch15.addGeometry(Part.LineSegment(Vector(12.12, 7, 0), Vector(12.12, -2.63, 0)), False)
sketch15.addGeometry(Part.LineSegment(Vector(12.12, -2.63, 0), Vector(12, -2.75, 0)), False)
sketch15.addConstraint(Sketcher.Constraint("Coincident", 0, 2, 1, 1))
sketch15.addConstraint(Sketcher.Constraint("Coincident", 1, 2, 2, 1))
sketch15.addConstraint(Sketcher.Constraint("Tangent", 2, 2, 3, 1))
sketch15.addConstraint(Sketcher.Constraint("Coincident", 3, 2, 4, 1))
sketch15.addConstraint(Sketcher.Constraint("Coincident", 4, 2, 5, 1))
sketch15.addConstraint(Sketcher.Constraint("Coincident", 5, 2, 6, 1))
sketch15.addConstraint(Sketcher.Constraint("Coincident", 6, 2, 7, 1))
sketch15.addConstraint(Sketcher.Constraint("Coincident", 7, 2, 0, 1))
sketch15.addConstraint(Sketcher.Constraint("Horizontal", 0))
sketch15.addConstraint(Sketcher.Constraint("Vertical", 1))
sketch15.addConstraint(Sketcher.Constraint("Vertical", 4))
sketch15.addConstraint(Sketcher.Constraint("Horizontal", 5))
sketch15.addConstraint(Sketcher.Constraint("Vertical", 6))
sketch15.addConstraint(Sketcher.Constraint("Equal", 2, 3))
sketch15.addConstraint(Sketcher.Constraint("Horizontal", 3, 3, 2, 2))
sketch15.addConstraint(Sketcher.Constraint("Vertical", 1, 2, 3, 2))
sketch15.addConstraint(Sketcher.Constraint("Radius", 2, Q("2.1 mm")))
sketch15.addConstraint(Sketcher.Constraint("DistanceX", 0, 2, 0, 1, Q("9 mm")))
sketch15.addConstraint(Sketcher.Constraint("Angle", 7, Q("-135 deg")))
sketch15.addConstraint(Sketcher.Constraint("DistanceX", -1, 1, 2, 3, Q("5 mm")))
sketch15.addConstraint(Sketcher.Constraint("DistanceY", -1, 1, 2, 3, Q("3 mm")))
sketch15.addConstraint(Sketcher.Constraint("DistanceX", -1, 1, 0, 2, Q("3 mm")))
sketch15.addConstraint(Sketcher.Constraint("DistanceY", -1, 1, 4, 2, Q("7 mm")))
sketch15.addConstraint(Sketcher.Constraint("DistanceY", 0, 2, -1, 1, Q("2.75 mm")))
sketch15.addConstraint(Sketcher.Constraint("Distance", 7, Q("0.173391 mm")))
pad6 = body.newObject("PartDesign::Pad", "Pad005")
pad6.Profile = sketch15
pad6.Length = 7.5

sketch16 = body.newObject("Sketcher::SketchObject", "Sketch015")
sketch16.AttachmentSupport = (doc.getObject("XZ_Plane"), [""])
sketch16.MapMode = "FlatFace"
sketch16.AttachmentOffset = App.Placement(Vector(0, 0, -41.5), App.Rotation())
sketch16.addGeometry(Part.LineSegment(Vector(-3, -2.8, 0), Vector(-12, -2.8, 0)), False)
sketch16.addGeometry(Part.LineSegment(Vector(-12, -2.8, 0), Vector(-12, 7, 0)), False)
sketch16.addGeometry(Part.LineSegment(Vector(-12, 7, 0), Vector(-3, 7, 0)), False)
sketch16.addGeometry(Part.LineSegment(Vector(-3, 7, 0), Vector(-3, 3.6, 0)), False)
sketch16.addGeometry(Part.ArcOfCircle(Part.Circle(Vector(-5, 3, 0), Vector(0, 0, 1), 2.1), math.radians(18), math.radians(342)), False)
sketch16.addGeometry(Part.LineSegment(Vector(-3, 2.4, 0), Vector(-3, -2.8, 0)), False)
sketch16.addConstraint(Sketcher.Constraint("Coincident", 0, 2, 1, 1))
sketch16.addConstraint(Sketcher.Constraint("Coincident", 1, 2, 2, 1))
sketch16.addConstraint(Sketcher.Constraint("Coincident", 2, 2, 3, 1))
sketch16.addConstraint(Sketcher.Constraint("Coincident", 3, 2, 4, 1))
sketch16.addConstraint(Sketcher.Constraint("Coincident", 4, 2, 5, 1))
sketch16.addConstraint(Sketcher.Constraint("Coincident", 5, 2, 0, 1))
sketch16.addConstraint(Sketcher.Constraint("Horizontal", 0))
sketch16.addConstraint(Sketcher.Constraint("Vertical", 1))
sketch16.addConstraint(Sketcher.Constraint("Horizontal", 2))
sketch16.addConstraint(Sketcher.Constraint("Vertical", 3))
sketch16.addConstraint(Sketcher.Constraint("Vertical", 5))
sketch16.addConstraint(Sketcher.Constraint("Vertical", 3, 2, 4, 2))
sketch16.addConstraint(Sketcher.Constraint("Radius", 4, Q("2.1 mm")))
sketch16.addConstraint(Sketcher.Constraint("DistanceX", 0, 2, 0, 1, Q("9 mm")))
sketch16.addConstraint(Sketcher.Constraint("DistanceX", 4, 3, -1, 1, Q("5 mm")))
sketch16.addConstraint(Sketcher.Constraint("DistanceY", -1, 1, 4, 3, Q("3 mm")))
sketch16.addConstraint(Sketcher.Constraint("DistanceX", 0, 2, -1, 1, Q("12 mm")))
sketch16.addConstraint(Sketcher.Constraint("DistanceY", -1, 1, 1, 2, Q("7 mm")))
sketch16.addConstraint(Sketcher.Constraint("DistanceY", 1, 1, 1, 2, Q("9.75 mm")))
pad7 = body.newObject("PartDesign::Pad", "Pad006")
pad7.Profile = sketch16
pad7.Length = 7.5

doc.recompute()
